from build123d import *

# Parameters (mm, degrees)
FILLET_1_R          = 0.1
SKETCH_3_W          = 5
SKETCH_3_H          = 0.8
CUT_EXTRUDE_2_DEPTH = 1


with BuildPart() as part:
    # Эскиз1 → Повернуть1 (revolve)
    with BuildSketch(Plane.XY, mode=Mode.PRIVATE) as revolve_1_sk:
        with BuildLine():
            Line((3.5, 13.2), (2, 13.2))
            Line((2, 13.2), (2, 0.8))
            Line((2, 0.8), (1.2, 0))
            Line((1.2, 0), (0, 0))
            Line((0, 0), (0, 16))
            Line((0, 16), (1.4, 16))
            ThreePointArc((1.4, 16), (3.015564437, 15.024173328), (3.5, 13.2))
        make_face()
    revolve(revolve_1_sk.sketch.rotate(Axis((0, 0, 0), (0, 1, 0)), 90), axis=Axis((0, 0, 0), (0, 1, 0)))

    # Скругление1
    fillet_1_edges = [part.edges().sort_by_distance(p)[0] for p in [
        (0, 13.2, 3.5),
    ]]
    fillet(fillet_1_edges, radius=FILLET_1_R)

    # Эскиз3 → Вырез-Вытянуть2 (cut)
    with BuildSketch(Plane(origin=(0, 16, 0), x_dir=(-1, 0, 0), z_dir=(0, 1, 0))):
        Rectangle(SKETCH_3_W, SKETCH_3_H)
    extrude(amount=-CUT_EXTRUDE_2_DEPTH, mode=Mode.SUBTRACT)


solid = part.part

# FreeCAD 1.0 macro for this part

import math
import FreeCAD as App
import Part
import Sketcher
from FreeCAD import Vector
Q = App.Units.Quantity


def edges_at(feature, points):
    """Names of the edges that pass closest to the given points."""
    edges = feature.Shape.Edges
    near = lambda p: min(range(len(edges)), key=lambda i: edges[i].distToShape(Part.Vertex(*p))[0])
    return sorted({f"Edge{near(p) + 1}" for p in points})

doc = App.newDocument("Part")
params = doc.addObject("Spreadsheet::Sheet", "Params")
for row, (alias, value) in enumerate([
    ("sketch1_height", "16 mm"),
    ("sketch1_width", "1.5 mm"),
    ("sketch1_width2", "1.4 mm"),
    ("sketch1_width3", "1.2 mm"),
    ("sketch1_height2", "12.4 mm"),
    ("revolution_angle", "360 deg"),
    ("fillet_radius", "0.1 mm"),
    ("sketch2_width", "5 mm"),
    ("sketch2_height", "0.8 mm"),
    ("pocket1_length", "1 mm"),
], start=1):
    params.set(f"A{row}", alias)
    params.set(f"B{row}", "=" + value)
    params.setAlias(f"B{row}", alias)

body = doc.addObject("PartDesign::Body", "Body")

# Sketch on XY plane
sketch1 = body.newObject("Sketcher::SketchObject", "Sketch")
sketch1.AttachmentSupport = (doc.getObject("XY_Plane"), [""])
sketch1.MapMode = "FlatFace"
sketch1.addGeometry([
    Part.LineSegment(Vector(2, 13.2, 0), Vector(3.5, 13.2, 0)),  # 0
    Part.ArcOfCircle(Part.Circle(Vector(1, 13.5, 0), Vector(0, 0, 1), 2.5), math.radians(-7), math.radians(81)),  # 1
    Part.LineSegment(Vector(1.4, 16, 0), Vector(0, 16, 0)),  # 2
    Part.LineSegment(Vector(0, 16, 0), Vector(0, 0, 0)),  # 3
    Part.LineSegment(Vector(0, 0, 0), Vector(1.2, 0, 0)),  # 4
    Part.LineSegment(Vector(1.2, 0, 0), Vector(2, 0.8, 0)),  # 5
    Part.LineSegment(Vector(2, 0.8, 0), Vector(2, 13.2, 0)),  # 6
], False)
sketch1.addConstraint([
    Sketcher.Constraint("Coincident", 0, 2, 1, 1),
    Sketcher.Constraint("Coincident", 1, 2, 2, 1),
    Sketcher.Constraint("Coincident", 2, 2, 3, 1),
    Sketcher.Constraint("Coincident", 3, 2, 4, 1),
    Sketcher.Constraint("Coincident", 4, 2, 5, 1),
    Sketcher.Constraint("Coincident", 5, 2, 6, 1),
    Sketcher.Constraint("Coincident", 6, 2, 0, 1),
    Sketcher.Constraint("Horizontal", 0),
    Sketcher.Constraint("Horizontal", 2),
    Sketcher.Constraint("Vertical", 3),
    Sketcher.Constraint("Horizontal", 4),
    Sketcher.Constraint("Vertical", 6),
    Sketcher.Constraint("Coincident", 3, 2, -1, 1),
    Sketcher.Constraint("DistanceY", 3, 2, 3, 1, Q("16 mm")),
    Sketcher.Constraint("Angle", 5, Q("45 deg")),
    Sketcher.Constraint("DistanceX", 0, 1, 0, 2, Q("1.5 mm")),
    Sketcher.Constraint("DistanceX", 2, 2, 2, 1, Q("1.4 mm")),
    Sketcher.Constraint("DistanceX", 4, 1, 4, 2, Q("1.2 mm")),
    Sketcher.Constraint("DistanceY", 6, 1, 6, 2, Q("12.4 mm")),
    Sketcher.Constraint("DistanceX", -1, 1, 1, 3, Q("1 mm")),
    Sketcher.Constraint("DistanceX", -1, 1, 5, 2, Q("2 mm")),
])
sketch1.setExpression("Constraints[13]", "Params.sketch1_height")
sketch1.setExpression("Constraints[15]", "Params.sketch1_width")
sketch1.setExpression("Constraints[16]", "Params.sketch1_width2")
sketch1.setExpression("Constraints[17]", "Params.sketch1_width3")
sketch1.setExpression("Constraints[18]", "Params.sketch1_height2")
revolution = body.newObject("PartDesign::Revolution", "Revolution")
revolution.Profile = sketch1
revolution.ReferenceAxis = (sketch1, ["V_Axis"])
revolution.setExpression("Angle", "Params.revolution_angle")
doc.recompute()

fillet = body.newObject("PartDesign::Fillet", "Fillet")
fillet.Base = (revolution, edges_at(revolution, [(0, 13.2, 3.5)]))
fillet.setExpression("Radius", "Params.fillet_radius")

# Sketch on XZ plane
sketch2 = body.newObject("Sketcher::SketchObject", "Sketch001")
sketch2.AttachmentSupport = (doc.getObject("XZ_Plane"), [""])
sketch2.MapMode = "FlatFace"
sketch2.AttachmentOffset = App.Placement(Vector(0, 0, -16), App.Rotation())
sketch2.addGeometry([
    Part.LineSegment(Vector(2.5, 0.4, 0), Vector(2.5, -0.4, 0)),
    Part.LineSegment(Vector(2.5, -0.4, 0), Vector(-2.5, -0.4, 0)),
    Part.LineSegment(Vector(-2.5, -0.4, 0), Vector(-2.5, 0.4, 0)),
    Part.LineSegment(Vector(-2.5, 0.4, 0), Vector(2.5, 0.4, 0)),
], False)
sketch2.addConstraint([
    Sketcher.Constraint("Coincident", 0, 2, 1, 1),
    Sketcher.Constraint("Coincident", 1, 2, 2, 1),
    Sketcher.Constraint("Coincident", 2, 2, 3, 1),
    Sketcher.Constraint("Coincident", 3, 2, 0, 1),
    Sketcher.Constraint("Vertical", 0),
    Sketcher.Constraint("Horizontal", 1),
    Sketcher.Constraint("Vertical", 2),
    Sketcher.Constraint("Horizontal", 3),
    Sketcher.Constraint("Symmetric", 0, 2, 2, 2, -1, 1),
    Sketcher.Constraint("DistanceX", 1, 2, 1, 1, Q("5 mm")),
    Sketcher.Constraint("DistanceY", 0, 2, 0, 1, Q("0.8 mm")),
])
sketch2.setExpression("Constraints[9]", "Params.sketch2_width")
sketch2.setExpression("Constraints[10]", "Params.sketch2_height")
pocket1 = body.newObject("PartDesign::Pocket", "Pocket")
pocket1.Profile = sketch2
pocket1.setExpression("Length", "Params.pocket1_length")
pocket1.Reversed = True

doc.recompute()
